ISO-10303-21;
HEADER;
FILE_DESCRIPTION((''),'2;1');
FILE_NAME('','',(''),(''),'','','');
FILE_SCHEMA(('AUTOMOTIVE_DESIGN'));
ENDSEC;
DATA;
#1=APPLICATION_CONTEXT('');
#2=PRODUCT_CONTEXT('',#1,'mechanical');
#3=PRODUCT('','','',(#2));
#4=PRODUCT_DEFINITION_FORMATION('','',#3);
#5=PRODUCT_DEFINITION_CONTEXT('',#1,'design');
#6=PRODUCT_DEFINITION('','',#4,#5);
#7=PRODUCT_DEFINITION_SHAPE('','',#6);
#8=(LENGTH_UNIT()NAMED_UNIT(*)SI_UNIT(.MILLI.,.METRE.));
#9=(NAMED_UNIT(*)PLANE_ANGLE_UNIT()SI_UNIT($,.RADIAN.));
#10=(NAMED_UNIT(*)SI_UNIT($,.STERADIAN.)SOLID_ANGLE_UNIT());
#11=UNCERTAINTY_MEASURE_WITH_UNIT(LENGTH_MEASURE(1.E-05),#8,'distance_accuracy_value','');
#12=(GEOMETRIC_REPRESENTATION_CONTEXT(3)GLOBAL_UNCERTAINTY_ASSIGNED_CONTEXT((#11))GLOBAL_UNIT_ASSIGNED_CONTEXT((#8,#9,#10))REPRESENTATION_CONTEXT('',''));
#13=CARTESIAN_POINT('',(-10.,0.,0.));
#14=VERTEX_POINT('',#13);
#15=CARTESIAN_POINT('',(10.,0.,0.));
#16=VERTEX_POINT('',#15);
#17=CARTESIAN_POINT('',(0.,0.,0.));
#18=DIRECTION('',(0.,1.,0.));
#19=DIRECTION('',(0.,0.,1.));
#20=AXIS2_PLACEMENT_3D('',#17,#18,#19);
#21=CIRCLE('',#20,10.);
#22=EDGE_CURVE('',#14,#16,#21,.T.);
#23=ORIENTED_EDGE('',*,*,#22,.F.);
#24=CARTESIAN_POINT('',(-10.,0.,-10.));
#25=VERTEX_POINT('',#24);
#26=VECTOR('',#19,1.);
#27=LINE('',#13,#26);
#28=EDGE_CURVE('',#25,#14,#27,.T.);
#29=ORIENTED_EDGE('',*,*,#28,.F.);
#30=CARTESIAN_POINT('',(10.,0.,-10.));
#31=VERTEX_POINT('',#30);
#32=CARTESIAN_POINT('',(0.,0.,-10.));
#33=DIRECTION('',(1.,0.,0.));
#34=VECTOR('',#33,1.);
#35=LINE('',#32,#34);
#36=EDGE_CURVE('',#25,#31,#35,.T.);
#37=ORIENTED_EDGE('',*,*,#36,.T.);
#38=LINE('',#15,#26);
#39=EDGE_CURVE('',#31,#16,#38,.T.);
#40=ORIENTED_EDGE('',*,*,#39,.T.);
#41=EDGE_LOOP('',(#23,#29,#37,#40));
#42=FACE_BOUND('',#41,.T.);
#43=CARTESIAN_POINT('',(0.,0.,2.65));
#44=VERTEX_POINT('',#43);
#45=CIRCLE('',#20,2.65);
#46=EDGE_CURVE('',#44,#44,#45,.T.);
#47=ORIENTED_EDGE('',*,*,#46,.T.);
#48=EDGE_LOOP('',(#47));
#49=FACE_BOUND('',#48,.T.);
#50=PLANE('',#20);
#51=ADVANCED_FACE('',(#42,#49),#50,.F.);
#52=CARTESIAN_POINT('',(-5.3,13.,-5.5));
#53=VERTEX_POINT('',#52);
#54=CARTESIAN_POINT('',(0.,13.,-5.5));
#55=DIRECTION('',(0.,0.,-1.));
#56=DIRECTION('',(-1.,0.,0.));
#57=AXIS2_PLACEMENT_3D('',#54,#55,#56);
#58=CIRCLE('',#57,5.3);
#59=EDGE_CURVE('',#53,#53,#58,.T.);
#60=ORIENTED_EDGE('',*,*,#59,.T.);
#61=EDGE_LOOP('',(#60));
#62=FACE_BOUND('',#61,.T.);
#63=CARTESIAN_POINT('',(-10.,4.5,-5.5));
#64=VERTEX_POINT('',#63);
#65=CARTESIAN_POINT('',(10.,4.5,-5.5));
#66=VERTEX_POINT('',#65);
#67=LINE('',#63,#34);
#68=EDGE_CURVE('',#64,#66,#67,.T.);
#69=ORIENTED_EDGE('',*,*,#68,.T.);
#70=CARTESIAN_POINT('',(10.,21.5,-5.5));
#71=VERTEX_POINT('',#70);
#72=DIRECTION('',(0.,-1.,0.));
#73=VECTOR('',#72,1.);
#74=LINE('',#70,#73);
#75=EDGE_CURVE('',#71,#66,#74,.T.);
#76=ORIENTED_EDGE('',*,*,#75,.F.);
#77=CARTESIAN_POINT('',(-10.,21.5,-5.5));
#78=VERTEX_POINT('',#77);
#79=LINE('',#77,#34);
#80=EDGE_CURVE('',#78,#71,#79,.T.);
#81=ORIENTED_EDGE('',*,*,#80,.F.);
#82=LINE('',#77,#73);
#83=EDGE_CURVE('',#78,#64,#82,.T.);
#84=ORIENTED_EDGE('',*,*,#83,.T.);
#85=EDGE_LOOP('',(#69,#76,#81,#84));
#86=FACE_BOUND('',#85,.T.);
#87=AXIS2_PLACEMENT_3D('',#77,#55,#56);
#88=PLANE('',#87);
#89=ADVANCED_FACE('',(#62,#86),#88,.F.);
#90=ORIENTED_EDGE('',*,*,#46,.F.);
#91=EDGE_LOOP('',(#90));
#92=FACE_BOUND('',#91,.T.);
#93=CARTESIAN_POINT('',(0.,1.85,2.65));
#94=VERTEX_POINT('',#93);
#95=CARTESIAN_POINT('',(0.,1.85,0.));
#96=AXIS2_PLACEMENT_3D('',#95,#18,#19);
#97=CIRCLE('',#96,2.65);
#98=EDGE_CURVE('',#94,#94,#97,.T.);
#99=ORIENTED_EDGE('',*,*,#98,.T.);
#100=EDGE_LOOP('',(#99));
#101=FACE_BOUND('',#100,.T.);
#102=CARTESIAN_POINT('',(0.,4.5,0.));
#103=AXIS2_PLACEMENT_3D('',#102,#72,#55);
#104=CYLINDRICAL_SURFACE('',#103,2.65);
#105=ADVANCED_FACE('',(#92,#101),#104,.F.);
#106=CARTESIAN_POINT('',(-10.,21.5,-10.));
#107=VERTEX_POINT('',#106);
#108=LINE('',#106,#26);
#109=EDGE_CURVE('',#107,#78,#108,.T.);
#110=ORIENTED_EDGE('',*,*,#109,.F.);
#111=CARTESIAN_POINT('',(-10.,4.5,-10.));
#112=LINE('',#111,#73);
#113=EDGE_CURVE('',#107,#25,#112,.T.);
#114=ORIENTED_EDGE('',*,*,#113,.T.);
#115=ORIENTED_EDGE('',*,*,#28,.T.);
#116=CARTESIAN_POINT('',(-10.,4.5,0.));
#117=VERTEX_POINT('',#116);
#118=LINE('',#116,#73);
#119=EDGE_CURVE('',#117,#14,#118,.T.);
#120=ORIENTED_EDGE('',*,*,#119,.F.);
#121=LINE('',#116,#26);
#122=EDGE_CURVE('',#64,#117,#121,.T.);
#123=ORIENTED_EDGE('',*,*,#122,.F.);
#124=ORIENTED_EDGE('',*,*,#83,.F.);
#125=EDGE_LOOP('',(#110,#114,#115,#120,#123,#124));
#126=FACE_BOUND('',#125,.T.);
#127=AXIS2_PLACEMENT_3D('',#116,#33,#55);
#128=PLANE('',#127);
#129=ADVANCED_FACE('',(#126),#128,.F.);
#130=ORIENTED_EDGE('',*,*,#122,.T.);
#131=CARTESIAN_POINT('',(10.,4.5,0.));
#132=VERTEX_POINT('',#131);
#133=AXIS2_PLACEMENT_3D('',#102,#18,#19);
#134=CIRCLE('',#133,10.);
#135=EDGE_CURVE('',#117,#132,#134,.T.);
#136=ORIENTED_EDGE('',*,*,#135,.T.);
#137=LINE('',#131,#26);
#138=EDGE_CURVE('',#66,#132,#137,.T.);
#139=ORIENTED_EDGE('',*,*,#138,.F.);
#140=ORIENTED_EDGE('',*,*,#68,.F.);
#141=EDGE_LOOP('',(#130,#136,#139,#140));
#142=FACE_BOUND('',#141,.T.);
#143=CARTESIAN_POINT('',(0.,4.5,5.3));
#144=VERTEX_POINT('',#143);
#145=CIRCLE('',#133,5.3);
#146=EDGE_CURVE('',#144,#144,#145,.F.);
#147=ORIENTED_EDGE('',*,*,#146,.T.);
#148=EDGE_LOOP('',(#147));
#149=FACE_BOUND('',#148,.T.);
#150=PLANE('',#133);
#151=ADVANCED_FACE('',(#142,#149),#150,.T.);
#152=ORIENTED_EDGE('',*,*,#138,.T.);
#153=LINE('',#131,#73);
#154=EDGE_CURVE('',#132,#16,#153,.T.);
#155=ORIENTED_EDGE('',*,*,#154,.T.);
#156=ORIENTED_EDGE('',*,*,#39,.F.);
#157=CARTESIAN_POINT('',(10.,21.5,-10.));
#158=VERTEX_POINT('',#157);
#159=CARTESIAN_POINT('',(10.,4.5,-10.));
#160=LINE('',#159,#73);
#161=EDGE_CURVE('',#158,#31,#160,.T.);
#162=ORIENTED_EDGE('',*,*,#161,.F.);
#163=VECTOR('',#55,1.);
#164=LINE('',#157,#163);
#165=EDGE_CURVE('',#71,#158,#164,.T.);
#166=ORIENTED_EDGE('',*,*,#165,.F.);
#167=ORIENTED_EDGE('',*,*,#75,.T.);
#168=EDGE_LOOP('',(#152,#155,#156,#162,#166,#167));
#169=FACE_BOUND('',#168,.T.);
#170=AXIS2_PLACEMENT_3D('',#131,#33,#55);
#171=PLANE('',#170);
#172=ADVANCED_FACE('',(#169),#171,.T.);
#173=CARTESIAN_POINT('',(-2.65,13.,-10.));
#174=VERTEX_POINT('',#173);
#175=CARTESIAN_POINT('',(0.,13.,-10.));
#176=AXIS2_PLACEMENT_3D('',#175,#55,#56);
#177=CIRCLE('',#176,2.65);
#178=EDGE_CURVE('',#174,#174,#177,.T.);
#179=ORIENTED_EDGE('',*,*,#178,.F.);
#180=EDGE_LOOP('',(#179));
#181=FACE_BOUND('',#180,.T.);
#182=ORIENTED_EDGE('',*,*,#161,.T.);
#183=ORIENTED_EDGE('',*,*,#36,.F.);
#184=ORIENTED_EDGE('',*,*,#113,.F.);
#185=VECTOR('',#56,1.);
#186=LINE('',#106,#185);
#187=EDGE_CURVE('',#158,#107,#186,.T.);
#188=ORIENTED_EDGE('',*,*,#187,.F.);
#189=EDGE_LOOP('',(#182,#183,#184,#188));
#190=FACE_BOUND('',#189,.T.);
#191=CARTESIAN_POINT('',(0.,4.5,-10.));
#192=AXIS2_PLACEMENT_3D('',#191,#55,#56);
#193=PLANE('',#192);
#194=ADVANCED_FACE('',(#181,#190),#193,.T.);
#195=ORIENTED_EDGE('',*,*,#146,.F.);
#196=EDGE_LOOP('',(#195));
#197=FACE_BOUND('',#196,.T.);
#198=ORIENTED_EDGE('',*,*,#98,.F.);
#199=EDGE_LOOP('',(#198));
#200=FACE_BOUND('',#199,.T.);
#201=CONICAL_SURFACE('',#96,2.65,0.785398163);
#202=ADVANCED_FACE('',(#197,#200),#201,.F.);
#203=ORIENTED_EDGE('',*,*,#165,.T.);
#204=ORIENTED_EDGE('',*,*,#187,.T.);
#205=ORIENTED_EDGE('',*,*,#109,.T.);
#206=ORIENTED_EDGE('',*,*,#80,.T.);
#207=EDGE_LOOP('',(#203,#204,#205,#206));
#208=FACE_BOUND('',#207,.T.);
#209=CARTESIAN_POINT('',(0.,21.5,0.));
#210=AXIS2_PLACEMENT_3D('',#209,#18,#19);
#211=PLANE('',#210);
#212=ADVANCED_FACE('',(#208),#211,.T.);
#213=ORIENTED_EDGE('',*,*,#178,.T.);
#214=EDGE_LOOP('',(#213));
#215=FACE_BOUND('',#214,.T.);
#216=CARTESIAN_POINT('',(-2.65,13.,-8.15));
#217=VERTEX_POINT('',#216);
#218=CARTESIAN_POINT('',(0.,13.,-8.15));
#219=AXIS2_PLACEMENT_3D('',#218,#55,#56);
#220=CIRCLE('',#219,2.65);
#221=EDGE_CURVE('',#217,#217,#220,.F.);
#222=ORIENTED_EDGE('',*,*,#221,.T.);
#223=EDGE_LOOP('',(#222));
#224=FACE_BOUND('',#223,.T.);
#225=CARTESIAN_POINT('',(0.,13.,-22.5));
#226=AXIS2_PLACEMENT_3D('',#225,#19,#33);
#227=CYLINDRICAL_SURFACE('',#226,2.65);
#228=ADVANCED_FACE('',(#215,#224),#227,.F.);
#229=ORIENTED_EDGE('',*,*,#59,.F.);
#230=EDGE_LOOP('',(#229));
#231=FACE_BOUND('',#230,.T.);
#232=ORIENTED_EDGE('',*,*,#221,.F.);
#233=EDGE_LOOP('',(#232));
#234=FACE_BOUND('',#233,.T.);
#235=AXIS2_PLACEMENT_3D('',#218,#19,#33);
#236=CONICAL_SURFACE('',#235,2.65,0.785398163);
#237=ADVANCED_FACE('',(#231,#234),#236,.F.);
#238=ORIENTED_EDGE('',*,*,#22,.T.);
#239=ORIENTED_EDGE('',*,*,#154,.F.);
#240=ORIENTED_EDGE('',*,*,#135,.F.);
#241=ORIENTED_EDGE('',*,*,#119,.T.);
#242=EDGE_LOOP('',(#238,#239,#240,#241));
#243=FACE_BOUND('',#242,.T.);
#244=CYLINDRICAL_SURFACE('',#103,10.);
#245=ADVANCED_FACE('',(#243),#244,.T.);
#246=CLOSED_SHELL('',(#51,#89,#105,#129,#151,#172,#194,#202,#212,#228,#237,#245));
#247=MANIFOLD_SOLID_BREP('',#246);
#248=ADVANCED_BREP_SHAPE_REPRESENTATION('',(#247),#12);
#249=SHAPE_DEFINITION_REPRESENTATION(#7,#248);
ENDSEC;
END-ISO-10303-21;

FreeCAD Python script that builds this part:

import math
import FreeCAD as App
import Part
import Sketcher
Q = App.Units.Quantity


def edges_at(feature, points):
    """Names of the edges that pass closest to the given points."""
    edges = feature.Shape.Edges
    near = lambda p: min(range(len(edges)), key=lambda i: edges[i].distToShape(Part.Vertex(*p))[0])
    return sorted({f"Edge{near(p) + 1}" for p in points})

doc = App.newDocument("Part")
body = doc.addObject("PartDesign::Body", "Body")

# Sketch on XZ plane
sketch1 = body.newObject("Sketcher::SketchObject", "Sketch")
sketch1.AttachmentSupport = (doc.getObject("XZ_Plane"), [""])
sketch1.MapMode = "FlatFace"
sketch1.addGeometry([
    Part.LineSegment(App.Vector(-10, -10, 0), App.Vector(-10, 0, 0)),  # 0
    Part.ArcOfCircle(Part.Circle(App.Vector(0, 0, 0), App.Vector(0, 0, 1), 10), math.radians(0), math.radians(180)),  # 1
    Part.LineSegment(App.Vector(10, 0, 0), App.Vector(10, -10, 0)),  # 2
    Part.LineSegment(App.Vector(10, -10, 0), App.Vector(-10, -10, 0)),  # 3
    Part.Circle(App.Vector(0, 0, 0), App.Vector(0, 0, 1), 2.6),  # 4
], False)
sketch1.addConstraint([
    Sketcher.Constraint("Tangent", 0, 2, 1, 2),
    Sketcher.Constraint("Tangent", 1, 1, 2, 1),
    Sketcher.Constraint("Coincident", 2, 2, 3, 1),
    Sketcher.Constraint("Coincident", 3, 2, 0, 1),
    Sketcher.Constraint("Vertical", 0),
    Sketcher.Constraint("Vertical", 2),
    Sketcher.Constraint("Horizontal", 3),
    Sketcher.Constraint("Coincident", 1, 3, -1, 1),
    Sketcher.Constraint("Coincident", 4, 3, -1, 1),
    Sketcher.Constraint("Radius", 1, Q("10 mm")),
    Sketcher.Constraint("Diameter", 4, Q("5.3 mm")),
    Sketcher.Constraint("DistanceY", 0, 1, 0, 2, Q("10 mm")),
])
pad1 = body.newObject("PartDesign::Pad", "Pad")
pad1.Profile = sketch1
pad1.Length = 4.5
pad1.Reversed = True

# Sketch on XZ plane
sketch2 = body.newObject("Sketcher::SketchObject", "Sketch001")
sketch2.AttachmentSupport = (doc.getObject("XZ_Plane"), [""])
sketch2.MapMode = "FlatFace"
sketch2.AttachmentOffset = App.Placement(App.Vector(0, 0, -4.5), App.Rotation())
sketch2.addGeometry([
    Part.LineSegment(App.Vector(-10, -10, 0), App.Vector(-10, -5.5, 0)),
    Part.LineSegment(App.Vector(-10, -5.5, 0), App.Vector(10, -5.5, 0)),
    Part.LineSegment(App.Vector(10, -5.5, 0), App.Vector(10, -10, 0)),
    Part.LineSegment(App.Vector(10, -10, 0), App.Vector(-10, -10, 0)),
], False)
sketch2.addConstraint([
    Sketcher.Constraint("Coincident", 0, 2, 1, 1),
    Sketcher.Constraint("Coincident", 1, 2, 2, 1),
    Sketcher.Constraint("Coincident", 2, 2, 3, 1),
    Sketcher.Constraint("Coincident", 3, 2, 0, 1),
    Sketcher.Constraint("Vertical", 0),
    Sketcher.Constraint("Horizontal", 1),
    Sketcher.Constraint("Vertical", 2),
    Sketcher.Constraint("Horizontal", 3),
    Sketcher.Constraint("DistanceX", 1, 1, 1, 2, Q("20 mm")),
    Sketcher.Constraint("DistanceY", 0, 1, 0, 2, Q("4.5 mm")),
    Sketcher.Constraint("DistanceX", 0, 2, -1, 1, Q("10 mm")),
    Sketcher.Constraint("DistanceY", 2, 2, -1, 1, Q("10 mm")),
])
pad2 = body.newObject("PartDesign::Pad", "Pad001")
pad2.Profile = sketch2
pad2.Length = 17
pad2.Reversed = True

# Sketch on XY plane
sketch3 = body.newObject("Sketcher::SketchObject", "Sketch002")
sketch3.AttachmentSupport = (doc.getObject("XY_Plane"), [""])
sketch3.MapMode = "FlatFace"
sketch3.AttachmentOffset = App.Placement(App.Vector(0, 0, -5.5), App.Rotation())
sketch3.addGeometry(Part.Circle(App.Vector(0, 13, 0), App.Vector(0, 0, 1), 2.6), False)
sketch3.addConstraint([
    Sketcher.Constraint("PointOnObject", 0, 3, -2),
    Sketcher.Constraint("Diameter", 0, Q("5.3 mm")),
    Sketcher.Constraint("DistanceY", -1, 1, 0, 3, Q("13 mm")),
])
pocket1 = body.newObject("PartDesign::Pocket", "Pocket")
pocket1.Profile = sketch3
pocket1.Length = 17
doc.recompute()

chamfer = body.newObject("PartDesign::Chamfer", "Chamfer")
chamfer.Base = (pocket1, edges_at(pocket1, [(0, 4.5, -2.65), (-2.65, 13, -5.5)]))
chamfer.Size = 2.65

doc.recompute()
